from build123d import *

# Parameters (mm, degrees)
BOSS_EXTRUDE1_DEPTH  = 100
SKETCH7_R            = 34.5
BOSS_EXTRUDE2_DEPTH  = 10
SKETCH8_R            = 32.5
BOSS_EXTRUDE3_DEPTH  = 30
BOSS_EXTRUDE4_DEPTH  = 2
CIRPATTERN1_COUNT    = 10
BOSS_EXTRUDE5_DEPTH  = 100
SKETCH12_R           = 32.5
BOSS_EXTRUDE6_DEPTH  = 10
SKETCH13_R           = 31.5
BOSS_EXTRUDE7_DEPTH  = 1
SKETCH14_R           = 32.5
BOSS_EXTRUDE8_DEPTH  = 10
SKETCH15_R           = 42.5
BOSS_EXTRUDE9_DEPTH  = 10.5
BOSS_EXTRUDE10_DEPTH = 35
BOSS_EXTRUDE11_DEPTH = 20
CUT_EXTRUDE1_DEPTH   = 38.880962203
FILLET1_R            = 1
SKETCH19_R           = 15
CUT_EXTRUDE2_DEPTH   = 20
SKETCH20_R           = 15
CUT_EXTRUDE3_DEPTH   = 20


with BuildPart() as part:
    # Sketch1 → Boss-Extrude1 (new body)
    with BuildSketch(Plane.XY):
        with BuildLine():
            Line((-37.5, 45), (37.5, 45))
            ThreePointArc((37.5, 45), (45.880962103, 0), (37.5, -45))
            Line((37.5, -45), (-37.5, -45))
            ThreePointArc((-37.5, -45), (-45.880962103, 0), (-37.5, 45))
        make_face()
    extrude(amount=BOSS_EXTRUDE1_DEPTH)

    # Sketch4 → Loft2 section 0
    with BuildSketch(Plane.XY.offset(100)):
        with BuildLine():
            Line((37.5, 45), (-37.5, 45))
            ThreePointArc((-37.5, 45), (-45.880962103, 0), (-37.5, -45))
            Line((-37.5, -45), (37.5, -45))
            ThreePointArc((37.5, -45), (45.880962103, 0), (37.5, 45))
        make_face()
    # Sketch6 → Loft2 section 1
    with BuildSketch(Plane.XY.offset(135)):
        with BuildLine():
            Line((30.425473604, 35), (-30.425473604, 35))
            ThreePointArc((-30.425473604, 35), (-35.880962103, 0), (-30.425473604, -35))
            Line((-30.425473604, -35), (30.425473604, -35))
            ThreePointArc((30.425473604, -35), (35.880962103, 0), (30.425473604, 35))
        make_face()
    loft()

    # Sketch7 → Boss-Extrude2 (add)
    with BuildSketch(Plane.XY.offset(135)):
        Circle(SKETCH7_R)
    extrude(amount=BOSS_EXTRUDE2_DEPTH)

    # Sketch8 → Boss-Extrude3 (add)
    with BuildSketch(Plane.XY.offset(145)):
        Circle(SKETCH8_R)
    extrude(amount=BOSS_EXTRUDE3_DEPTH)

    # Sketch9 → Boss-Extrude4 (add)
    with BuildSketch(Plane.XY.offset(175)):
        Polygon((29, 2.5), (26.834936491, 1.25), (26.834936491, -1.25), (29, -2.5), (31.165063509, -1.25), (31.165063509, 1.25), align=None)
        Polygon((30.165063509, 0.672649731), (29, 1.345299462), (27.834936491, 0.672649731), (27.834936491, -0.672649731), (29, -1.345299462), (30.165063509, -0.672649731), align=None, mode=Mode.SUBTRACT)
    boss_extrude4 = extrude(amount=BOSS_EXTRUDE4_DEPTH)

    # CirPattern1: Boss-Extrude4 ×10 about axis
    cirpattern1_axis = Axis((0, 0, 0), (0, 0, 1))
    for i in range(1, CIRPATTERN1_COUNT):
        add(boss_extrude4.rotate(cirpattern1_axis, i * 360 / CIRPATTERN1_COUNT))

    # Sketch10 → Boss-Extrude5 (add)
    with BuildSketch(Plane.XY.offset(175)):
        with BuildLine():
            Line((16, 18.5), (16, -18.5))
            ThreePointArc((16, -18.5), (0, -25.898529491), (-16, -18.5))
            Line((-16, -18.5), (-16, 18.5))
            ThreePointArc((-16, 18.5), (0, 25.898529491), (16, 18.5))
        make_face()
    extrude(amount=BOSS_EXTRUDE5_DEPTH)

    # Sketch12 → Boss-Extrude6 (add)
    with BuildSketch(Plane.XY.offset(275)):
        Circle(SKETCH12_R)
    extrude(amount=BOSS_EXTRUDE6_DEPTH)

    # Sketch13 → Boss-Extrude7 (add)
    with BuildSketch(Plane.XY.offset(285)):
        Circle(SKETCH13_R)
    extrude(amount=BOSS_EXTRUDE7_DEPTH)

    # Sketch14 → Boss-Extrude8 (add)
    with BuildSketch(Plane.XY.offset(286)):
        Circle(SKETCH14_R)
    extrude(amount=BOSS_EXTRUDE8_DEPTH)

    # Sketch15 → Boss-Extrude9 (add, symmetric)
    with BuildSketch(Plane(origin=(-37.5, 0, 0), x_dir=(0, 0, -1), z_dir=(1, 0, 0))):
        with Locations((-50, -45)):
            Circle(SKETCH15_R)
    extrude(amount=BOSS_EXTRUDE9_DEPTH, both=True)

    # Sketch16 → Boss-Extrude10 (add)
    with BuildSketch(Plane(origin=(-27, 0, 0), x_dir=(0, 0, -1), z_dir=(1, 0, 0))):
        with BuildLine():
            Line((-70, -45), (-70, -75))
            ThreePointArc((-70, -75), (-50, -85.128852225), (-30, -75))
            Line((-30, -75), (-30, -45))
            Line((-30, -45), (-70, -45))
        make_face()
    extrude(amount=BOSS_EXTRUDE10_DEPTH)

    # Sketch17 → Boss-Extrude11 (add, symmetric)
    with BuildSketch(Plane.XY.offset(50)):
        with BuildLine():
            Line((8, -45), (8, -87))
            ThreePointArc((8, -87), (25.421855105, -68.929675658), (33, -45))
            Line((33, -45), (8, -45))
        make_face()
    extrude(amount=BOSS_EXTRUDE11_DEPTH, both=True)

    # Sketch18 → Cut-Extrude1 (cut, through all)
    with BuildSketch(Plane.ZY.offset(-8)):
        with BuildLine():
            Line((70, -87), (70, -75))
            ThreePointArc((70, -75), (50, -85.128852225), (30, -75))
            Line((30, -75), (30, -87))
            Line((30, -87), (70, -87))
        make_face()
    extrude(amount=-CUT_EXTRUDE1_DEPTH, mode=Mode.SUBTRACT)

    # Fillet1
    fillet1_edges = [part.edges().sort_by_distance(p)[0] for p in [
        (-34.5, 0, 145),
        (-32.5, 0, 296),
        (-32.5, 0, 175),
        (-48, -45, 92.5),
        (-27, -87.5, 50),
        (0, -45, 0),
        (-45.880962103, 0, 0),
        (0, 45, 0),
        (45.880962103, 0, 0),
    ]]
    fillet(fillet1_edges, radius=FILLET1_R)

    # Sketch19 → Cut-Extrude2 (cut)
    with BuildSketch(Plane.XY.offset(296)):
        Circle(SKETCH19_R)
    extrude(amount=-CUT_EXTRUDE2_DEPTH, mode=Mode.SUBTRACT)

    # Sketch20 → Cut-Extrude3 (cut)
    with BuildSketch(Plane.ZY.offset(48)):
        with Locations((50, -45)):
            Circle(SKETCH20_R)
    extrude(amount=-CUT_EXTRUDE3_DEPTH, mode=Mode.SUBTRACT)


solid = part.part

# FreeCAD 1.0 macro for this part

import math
import FreeCAD as App
import Part
import Sketcher
Q = App.Units.Quantity


def edges_at(feature, points):
    """Names of the edges that pass closest to the given points."""
    edges = feature.Shape.Edges
    near = lambda p: min(range(len(edges)), key=lambda i: edges[i].distToShape(Part.Vertex(*p))[0])
    return sorted({f"Edge{near(p) + 1}" for p in points})


def add_polygon(sketch, points):
    """Adds a closed chain of lines whose ends are joined by coincident constraints."""
    first, n = sketch.GeometryCount, len(points)
    for a, b in zip(points, points[1:] + points[:1]):
        sketch.addGeometry(Part.LineSegment(App.Vector(*a, 0), App.Vector(*b, 0)), False)
    for i in range(n):
        sketch.addConstraint(Sketcher.Constraint("Coincident", first + i, 2, first + (i + 1) % n, 1))

doc = App.newDocument("Part")
body = doc.addObject("PartDesign::Body", "Body")

# Sketch on XY plane
sketch1 = doc.addObject("Sketcher::SketchObject", "Sketch")
body.addObject(sketch1)
sketch1.AttachmentSupport = (doc.XY_Plane, [""])
sketch1.MapMode = "FlatFace"
sketch1.addGeometry(Part.LineSegment(App.Vector(38, 45, 0), App.Vector(-38, 45, 0)), False)
sketch1.addGeometry(Part.ArcOfCircle(Part.Circle(App.Vector(79, 0, 0), App.Vector(0, 0, 1), 125), math.radians(159), math.radians(201)), False)
sketch1.addGeometry(Part.LineSegment(App.Vector(-38, -45, 0), App.Vector(38, -45, 0)), False)
sketch1.addGeometry(Part.ArcOfCircle(Part.Circle(App.Vector(-79, 0, 0), App.Vector(0, 0, 1), 125), math.radians(-21), math.radians(21)), False)
sketch1.addConstraint(Sketcher.Constraint("Coincident", 0, 2, 1, 1))
sketch1.addConstraint(Sketcher.Constraint("Coincident", 1, 2, 2, 1))
sketch1.addConstraint(Sketcher.Constraint("Coincident", 2, 2, 3, 1))
sketch1.addConstraint(Sketcher.Constraint("Coincident", 3, 2, 0, 1))
sketch1.addConstraint(Sketcher.Constraint("Horizontal", 0))
sketch1.addConstraint(Sketcher.Constraint("Horizontal", 2))
sketch1.addConstraint(Sketcher.Constraint("Equal", 1, 3))
sketch1.addConstraint(Sketcher.Constraint("Symmetric", 1, 3, 3, 3, -1, 1))
sketch1.addConstraint(Sketcher.Constraint("Symmetric", 0, 2, 1, 2, -1))
sketch1.addConstraint(Sketcher.Constraint("Radius", 1, Q("125 mm")))
sketch1.addConstraint(Sketcher.Constraint("DistanceX", 0, 2, 0, 1, Q("75 mm")))
sketch1.addConstraint(Sketcher.Constraint("DistanceY", -1, 1, 0, 2, Q("45 mm")))
pad1 = doc.addObject("PartDesign::Pad", "Pad")
body.addObject(pad1)
pad1.Profile = sketch1
pad1.Length = 100

# Sketch on XY plane
sketch2 = doc.addObject("Sketcher::SketchObject", "Sketch001")
body.addObject(sketch2)
sketch2.AttachmentSupport = (doc.XY_Plane, [""])
sketch2.MapMode = "FlatFace"
sketch2.AttachmentOffset = App.Placement(App.Vector(0, 0, 100), App.Rotation())
sketch2.addGeometry(Part.LineSegment(App.Vector(38, 45, 0), App.Vector(-38, 45, 0)), False)
sketch2.addGeometry(Part.ArcOfCircle(Part.Circle(App.Vector(79, 0, 0), App.Vector(0, 0, 1), 125), math.radians(159), math.radians(201)), False)
sketch2.addGeometry(Part.LineSegment(App.Vector(-38, -45, 0), App.Vector(38, -45, 0)), False)
sketch2.addGeometry(Part.ArcOfCircle(Part.Circle(App.Vector(-79, 0, 0), App.Vector(0, 0, 1), 125), math.radians(-21), math.radians(21)), False)
sketch2.addConstraint(Sketcher.Constraint("Coincident", 0, 2, 1, 1))
sketch2.addConstraint(Sketcher.Constraint("Coincident", 1, 2, 2, 1))
sketch2.addConstraint(Sketcher.Constraint("Coincident", 2, 2, 3, 1))
sketch2.addConstraint(Sketcher.Constraint("Coincident", 3, 2, 0, 1))
sketch2.addConstraint(Sketcher.Constraint("Horizontal", 0))
sketch2.addConstraint(Sketcher.Constraint("Horizontal", 2))
sketch2.addConstraint(Sketcher.Constraint("Equal", 1, 3))
sketch2.addConstraint(Sketcher.Constraint("Symmetric", 1, 3, 3, 3, -1, 1))
sketch2.addConstraint(Sketcher.Constraint("Symmetric", 0, 2, 1, 2, -1))
sketch2.addConstraint(Sketcher.Constraint("Radius", 1, Q("125 mm")))
sketch2.addConstraint(Sketcher.Constraint("DistanceX", 0, 2, 0, 1, Q("75 mm")))
sketch2.addConstraint(Sketcher.Constraint("DistanceY", -1, 1, 0, 2, Q("45 mm")))

# Sketch on XY plane
sketch3 = doc.addObject("Sketcher::SketchObject", "Sketch002")
body.addObject(sketch3)
sketch3.AttachmentSupport = (doc.XY_Plane, [""])
sketch3.MapMode = "FlatFace"
sketch3.AttachmentOffset = App.Placement(App.Vector(0, 0, 135), App.Rotation())
sketch3.addGeometry(Part.LineSegment(App.Vector(30, 35, 0), App.Vector(-30, 35, 0)), False)
sketch3.addGeometry(Part.ArcOfCircle(Part.Circle(App.Vector(79, 0, 0), App.Vector(0, 0, 1), 115), math.radians(162), math.radians(198)), False)
sketch3.addGeometry(Part.LineSegment(App.Vector(-30, -35, 0), App.Vector(30, -35, 0)), False)
sketch3.addGeometry(Part.ArcOfCircle(Part.Circle(App.Vector(-79, 0, 0), App.Vector(0, 0, 1), 115), math.radians(-18), math.radians(18)), False)
sketch3.addConstraint(Sketcher.Constraint("Coincident", 0, 2, 1, 1))
sketch3.addConstraint(Sketcher.Constraint("Coincident", 1, 2, 2, 1))
sketch3.addConstraint(Sketcher.Constraint("Coincident", 2, 2, 3, 1))
sketch3.addConstraint(Sketcher.Constraint("Coincident", 3, 2, 0, 1))
sketch3.addConstraint(Sketcher.Constraint("Horizontal", 0))
sketch3.addConstraint(Sketcher.Constraint("Horizontal", 2))
sketch3.addConstraint(Sketcher.Constraint("Equal", 1, 3))
sketch3.addConstraint(Sketcher.Constraint("Symmetric", 1, 3, 3, 3, -1, 1))
sketch3.addConstraint(Sketcher.Constraint("Symmetric", 0, 2, 1, 2, -1))
sketch3.addConstraint(Sketcher.Constraint("Radius", 1, Q("115 mm")))
sketch3.addConstraint(Sketcher.Constraint("DistanceY", -1, 1, 0, 2, Q("35 mm")))
sketch3.addConstraint(Sketcher.Constraint("DistanceX", 0, 2, 0, 1, Q("60.850947 mm")))

additiveloft = doc.addObject("PartDesign::AdditiveLoft", "AdditiveLoft")
body.addObject(additiveloft)
additiveloft.Profile = sketch2
additiveloft.Sections = [sketch3]

# Sketch on XY plane
sketch4 = doc.addObject("Sketcher::SketchObject", "Sketch003")
body.addObject(sketch4)
sketch4.AttachmentSupport = (doc.XY_Plane, [""])
sketch4.MapMode = "FlatFace"
sketch4.AttachmentOffset = App.Placement(App.Vector(0, 0, 135), App.Rotation())
sketch4.addGeometry(Part.Circle(App.Vector(0, 0, 0), App.Vector(0, 0, 1), 34), False)
sketch4.addConstraint(Sketcher.Constraint("Coincident", 0, 3, -1, 1))
sketch4.addConstraint(Sketcher.Constraint("Diameter", 0, Q("69 mm")))
pad2 = doc.addObject("PartDesign::Pad", "Pad001")
body.addObject(pad2)
pad2.Profile = sketch4
pad2.Length = 10

# Sketch on XY plane
sketch5 = doc.addObject("Sketcher::SketchObject", "Sketch004")
body.addObject(sketch5)
sketch5.AttachmentSupport = (doc.XY_Plane, [""])
sketch5.MapMode = "FlatFace"
sketch5.AttachmentOffset = App.Placement(App.Vector(0, 0, 145), App.Rotation())
sketch5.addGeometry(Part.Circle(App.Vector(0, 0, 0), App.Vector(0, 0, 1), 32), False)
sketch5.addConstraint(Sketcher.Constraint("Coincident", 0, 3, -1, 1))
sketch5.addConstraint(Sketcher.Constraint("Diameter", 0, Q("65 mm")))
pad3 = doc.addObject("PartDesign::Pad", "Pad002")
body.addObject(pad3)
pad3.Profile = sketch5
pad3.Length = 30

# Sketch on XY plane
sketch6 = doc.addObject("Sketcher::SketchObject", "Sketch005")
body.addObject(sketch6)
sketch6.AttachmentSupport = (doc.XY_Plane, [""])
sketch6.MapMode = "FlatFace"
sketch6.AttachmentOffset = App.Placement(App.Vector(0, 0, 175), App.Rotation())
add_polygon(sketch6, [(29, 2.5), (26.8, 1.2), (26.8, -1.2), (29, -2.5), (31.2, -1.2), (31.2, 1.2)])  # lines 0-5
add_polygon(sketch6, [(29, 1.3), (30.2, 0.7), (30.2, -0.7), (29, -1.3), (27.8, -0.7), (27.8, 0.7)])  # lines 6-11
sketch6.addConstraint(Sketcher.Constraint("Vertical", 1))
sketch6.addConstraint(Sketcher.Constraint("Vertical", 4))
sketch6.addConstraint(Sketcher.Constraint("Vertical", 7))
sketch6.addConstraint(Sketcher.Constraint("Vertical", 10))
sketch6.addConstraint(Sketcher.Constraint("Symmetric", 2, 2, 5, 2, -1))
sketch6.addConstraint(Sketcher.Constraint("Symmetric", 8, 2, 11, 2, -1))
sketch6.addConstraint(Sketcher.Constraint("Parallel", 0, 3))
sketch6.addConstraint(Sketcher.Constraint("Parallel", 2, 5))
sketch6.addConstraint(Sketcher.Constraint("Parallel", 5, 6))
sketch6.addConstraint(Sketcher.Constraint("Parallel", 3, 8))
sketch6.addConstraint(Sketcher.Constraint("Parallel", 6, 9))
sketch6.addConstraint(Sketcher.Constraint("Parallel", 8, 11))
sketch6.addConstraint(Sketcher.Constraint("Horizontal", 1, 2, 3, 2))
sketch6.addConstraint(Sketcher.Constraint("Horizontal", 0, 2, 4, 2))
sketch6.addConstraint(Sketcher.Constraint("Horizontal", 7, 2, 9, 2))
sketch6.addConstraint(Sketcher.Constraint("Vertical", 5, 2, 8, 2))
sketch6.addConstraint(Sketcher.Constraint("Angle", 0, Q("-150 deg")))
sketch6.addConstraint(Sketcher.Constraint("DistanceY", 1, 2, 1, 1, Q("2.5 mm")))
sketch6.addConstraint(Sketcher.Constraint("DistanceX", -1, 1, 2, 2, Q("29 mm")))
sketch6.addConstraint(Sketcher.Constraint("DistanceY", 2, 2, 5, 2, Q("5 mm")))
sketch6.addConstraint(Sketcher.Constraint("DistanceX", 6, 2, 4, 2, Q("1 mm")))
sketch6.addConstraint(Sketcher.Constraint("DistanceY", 7, 2, 7, 1, Q("1.345299 mm")))
pad4 = doc.addObject("PartDesign::Pad", "Pad003")
body.addObject(pad4)
pad4.Profile = sketch6
pad4.Length = 2
doc.recompute()

polarpattern = doc.addObject("PartDesign::PolarPattern", "PolarPattern")
body.addObject(polarpattern)
polarpattern.Originals = [pad4]
polarpattern.Axis = (doc.Z_Axis, [""])
polarpattern.Angle = 360
polarpattern.Occurrences = 10
body.Tip = polarpattern

# Sketch on XY plane
sketch7 = doc.addObject("Sketcher::SketchObject", "Sketch006")
body.addObject(sketch7)
sketch7.AttachmentSupport = (doc.XY_Plane, [""])
sketch7.MapMode = "FlatFace"
sketch7.AttachmentOffset = App.Placement(App.Vector(0, 0, 175), App.Rotation())
sketch7.addGeometry(Part.LineSegment(App.Vector(16, -18, 0), App.Vector(16, 18, 0)), False)
sketch7.addGeometry(Part.ArcOfCircle(Part.Circle(App.Vector(0, 5, 0), App.Vector(0, 0, 1), 21), math.radians(40), math.radians(140)), False)
sketch7.addGeometry(Part.LineSegment(App.Vector(-16, 18, 0), App.Vector(-16, -18, 0)), False)
sketch7.addGeometry(Part.ArcOfCircle(Part.Circle(App.Vector(0, -5, 0), App.Vector(0, 0, 1), 21), math.radians(-140), math.radians(-40)), False)
sketch7.addConstraint(Sketcher.Constraint("Coincident", 0, 2, 1, 1))
sketch7.addConstraint(Sketcher.Constraint("Coincident", 1, 2, 2, 1))
sketch7.addConstraint(Sketcher.Constraint("Coincident", 2, 2, 3, 1))
sketch7.addConstraint(Sketcher.Constraint("Coincident", 3, 2, 0, 1))
sketch7.addConstraint(Sketcher.Constraint("Vertical", 0))
sketch7.addConstraint(Sketcher.Constraint("Vertical", 2))
sketch7.addConstraint(Sketcher.Constraint("Equal", 1, 3))
sketch7.addConstraint(Sketcher.Constraint("Symmetric", 1, 3, 3, 3, -1, 1))
sketch7.addConstraint(Sketcher.Constraint("Symmetric", 0, 2, 1, 2, -2))
sketch7.addConstraint(Sketcher.Constraint("Radius", 1, Q("21 mm")))
sketch7.addConstraint(Sketcher.Constraint("DistanceY", 0, 1, 0, 2, Q("37 mm")))
sketch7.addConstraint(Sketcher.Constraint("DistanceX", -1, 1, 0, 2, Q("16 mm")))
pad5 = doc.addObject("PartDesign::Pad", "Pad004")
body.addObject(pad5)
pad5.Profile = sketch7
pad5.Length = 100

# Sketch on XY plane
sketch8 = doc.addObject("Sketcher::SketchObject", "Sketch007")
body.addObject(sketch8)
sketch8.AttachmentSupport = (doc.XY_Plane, [""])
sketch8.MapMode = "FlatFace"
sketch8.AttachmentOffset = App.Placement(App.Vector(0, 0, 275), App.Rotation())
sketch8.addGeometry(Part.Circle(App.Vector(0, 0, 0), App.Vector(0, 0, 1), 32), False)
sketch8.addConstraint(Sketcher.Constraint("Coincident", 0, 3, -1, 1))
sketch8.addConstraint(Sketcher.Constraint("Diameter", 0, Q("65 mm")))
pad6 = doc.addObject("PartDesign::Pad", "Pad005")
body.addObject(pad6)
pad6.Profile = sketch8
pad6.Length = 10

# Sketch on XY plane
sketch9 = doc.addObject("Sketcher::SketchObject", "Sketch008")
body.addObject(sketch9)
sketch9.AttachmentSupport = (doc.XY_Plane, [""])
sketch9.MapMode = "FlatFace"
sketch9.AttachmentOffset = App.Placement(App.Vector(0, 0, 285), App.Rotation())
sketch9.addGeometry(Part.Circle(App.Vector(0, 0, 0), App.Vector(0, 0, 1), 32), False)
sketch9.addConstraint(Sketcher.Constraint("Coincident", 0, 3, -1, 1))
sketch9.addConstraint(Sketcher.Constraint("Diameter", 0, Q("63 mm")))
pad7 = doc.addObject("PartDesign::Pad", "Pad006")
body.addObject(pad7)
pad7.Profile = sketch9
pad7.Length = 1

# Sketch on XY plane
sketch10 = doc.addObject("Sketcher::SketchObject", "Sketch009")
body.addObject(sketch10)
sketch10.AttachmentSupport = (doc.XY_Plane, [""])
sketch10.MapMode = "FlatFace"
sketch10.AttachmentOffset = App.Placement(App.Vector(0, 0, 286), App.Rotation())
sketch10.addGeometry(Part.Circle(App.Vector(0, 0, 0), App.Vector(0, 0, 1), 32), False)
sketch10.addConstraint(Sketcher.Constraint("Coincident", 0, 3, -1, 1))
sketch10.addConstraint(Sketcher.Constraint("Diameter", 0, Q("65 mm")))
pad8 = doc.addObject("PartDesign::Pad", "Pad007")
body.addObject(pad8)
pad8.Profile = sketch10
pad8.Length = 10

# Sketch on YZ plane
sketch11 = doc.addObject("Sketcher::SketchObject", "Sketch010")
body.addObject(sketch11)
sketch11.AttachmentSupport = (doc.YZ_Plane, [""])
sketch11.MapMode = "FlatFace"
sketch11.AttachmentOffset = App.Placement(App.Vector(0, 0, -37.5), App.Rotation())
sketch11.addGeometry(Part.Circle(App.Vector(-45, 50, 0), App.Vector(0, 0, 1), 42), False)
sketch11.addConstraint(Sketcher.Constraint("Diameter", 0, Q("85 mm")))
sketch11.addConstraint(Sketcher.Constraint("DistanceX", 0, 3, -1, 1, Q("45 mm")))
sketch11.addConstraint(Sketcher.Constraint("DistanceY", -1, 1, 0, 3, Q("50 mm")))
pad9 = doc.addObject("PartDesign::Pad", "Pad008")
body.addObject(pad9)
pad9.Profile = sketch11
pad9.Length = 21
pad9.Midplane = True

# Sketch on YZ plane
sketch12 = doc.addObject("Sketcher::SketchObject", "Sketch011")
body.addObject(sketch12)
sketch12.AttachmentSupport = (doc.YZ_Plane, [""])
sketch12.MapMode = "FlatFace"
sketch12.AttachmentOffset = App.Placement(App.Vector(0, 0, -27), App.Rotation())
sketch12.addGeometry(Part.LineSegment(App.Vector(-45, 70, 0), App.Vector(-75, 70, 0)), False)
sketch12.addGeometry(Part.ArcOfCircle(Part.Circle(App.Vector(-60, 50, 0), App.Vector(0, 0, 1), 25), math.radians(126), math.radians(234)), False)
sketch12.addGeometry(Part.LineSegment(App.Vector(-75, 30, 0), App.Vector(-45, 30, 0)), False)
sketch12.addGeometry(Part.LineSegment(App.Vector(-45, 30, 0), App.Vector(-45, 70, 0)), False)
sketch12.addConstraint(Sketcher.Constraint("Coincident", 0, 2, 1, 1))
sketch12.addConstraint(Sketcher.Constraint("Coincident", 1, 2, 2, 1))
sketch12.addConstraint(Sketcher.Constraint("Coincident", 2, 2, 3, 1))
sketch12.addConstraint(Sketcher.Constraint("Coincident", 3, 2, 0, 1))
sketch12.addConstraint(Sketcher.Constraint("Horizontal", 0))
sketch12.addConstraint(Sketcher.Constraint("Horizontal", 2))
sketch12.addConstraint(Sketcher.Constraint("Vertical", 3))
sketch12.addConstraint(Sketcher.Constraint("Vertical", 0, 2, 1, 2))
sketch12.addConstraint(Sketcher.Constraint("DistanceX", 0, 2, 0, 1, Q("30 mm")))
sketch12.addConstraint(Sketcher.Constraint("DistanceY", 3, 1, 3, 2, Q("40 mm")))
sketch12.addConstraint(Sketcher.Constraint("Radius", 1, Q("24.81 mm")))
sketch12.addConstraint(Sketcher.Constraint("DistanceY", -1, 1, 1, 3, Q("50 mm")))
sketch12.addConstraint(Sketcher.Constraint("DistanceX", 0, 2, -1, 1, Q("75 mm")))
pad10 = doc.addObject("PartDesign::Pad", "Pad009")
body.addObject(pad10)
pad10.Profile = sketch12
pad10.Length = 35

# Sketch on XY plane
sketch13 = doc.addObject("Sketcher::SketchObject", "Sketch012")
body.addObject(sketch13)
sketch13.AttachmentSupport = (doc.XY_Plane, [""])
sketch13.MapMode = "FlatFace"
sketch13.AttachmentOffset = App.Placement(App.Vector(0, 0, 50), App.Rotation())
sketch13.addGeometry(Part.LineSegment(App.Vector(8, -45, 0), App.Vector(8, -87, 0)), False)
sketch13.addGeometry(Part.ArcOfCircle(Part.Circle(App.Vector(-22, -41, 0), App.Vector(0, 0, 1), 55), math.radians(-57), math.radians(-4)), False)
sketch13.addGeometry(Part.LineSegment(App.Vector(33, -45, 0), App.Vector(8, -45, 0)), False)
sketch13.addConstraint(Sketcher.Constraint("Coincident", 0, 2, 1, 1))
sketch13.addConstraint(Sketcher.Constraint("Coincident", 1, 2, 2, 1))
sketch13.addConstraint(Sketcher.Constraint("Coincident", 2, 2, 0, 1))
sketch13.addConstraint(Sketcher.Constraint("Vertical", 0))
sketch13.addConstraint(Sketcher.Constraint("Horizontal", 2))
sketch13.addConstraint(Sketcher.Constraint("Radius", 1, Q("55 mm")))
sketch13.addConstraint(Sketcher.Constraint("DistanceX", 2, 2, 2, 1, Q("25 mm")))
sketch13.addConstraint(Sketcher.Constraint("DistanceY", 0, 2, 0, 1, Q("42 mm")))
sketch13.addConstraint(Sketcher.Constraint("DistanceX", -1, 1, 0, 2, Q("8 mm")))
sketch13.addConstraint(Sketcher.Constraint("DistanceY", 0, 2, -1, 1, Q("87 mm")))
pad11 = doc.addObject("PartDesign::Pad", "Pad010")
body.addObject(pad11)
pad11.Profile = sketch13
pad11.Length = 40
pad11.Midplane = True

# Sketch on YZ plane
sketch14 = doc.addObject("Sketcher::SketchObject", "Sketch013")
body.addObject(sketch14)
sketch14.AttachmentSupport = (doc.YZ_Plane, [""])
sketch14.MapMode = "FlatFace"
sketch14.AttachmentOffset = App.Placement(App.Vector(0, 0, 8), App.Rotation())
sketch14.addGeometry(Part.LineSegment(App.Vector(-87, 70, 0), App.Vector(-75, 70, 0)), False)
sketch14.addGeometry(Part.ArcOfCircle(Part.Circle(App.Vector(-60, 50, 0), App.Vector(0, 0, 1), 25), math.radians(126), math.radians(234)), False)
sketch14.addGeometry(Part.LineSegment(App.Vector(-75, 30, 0), App.Vector(-87, 30, 0)), False)
sketch14.addGeometry(Part.LineSegment(App.Vector(-87, 30, 0), App.Vector(-87, 70, 0)), False)
sketch14.addConstraint(Sketcher.Constraint("Coincident", 0, 2, 1, 1))
sketch14.addConstraint(Sketcher.Constraint("Coincident", 1, 2, 2, 1))
sketch14.addConstraint(Sketcher.Constraint("Coincident", 2, 2, 3, 1))
sketch14.addConstraint(Sketcher.Constraint("Coincident", 3, 2, 0, 1))
sketch14.addConstraint(Sketcher.Constraint("Horizontal", 0))
sketch14.addConstraint(Sketcher.Constraint("Horizontal", 2))
sketch14.addConstraint(Sketcher.Constraint("Vertical", 3))
sketch14.addConstraint(Sketcher.Constraint("Vertical", 0, 2, 1, 2))
sketch14.addConstraint(Sketcher.Constraint("DistanceX", 0, 1, 0, 2, Q("12 mm")))
sketch14.addConstraint(Sketcher.Constraint("DistanceY", 3, 1, 3, 2, Q("40 mm")))
sketch14.addConstraint(Sketcher.Constraint("Radius", 1, Q("24.81 mm")))
sketch14.addConstraint(Sketcher.Constraint("DistanceY", -1, 1, 1, 3, Q("50 mm")))
sketch14.addConstraint(Sketcher.Constraint("DistanceX", 0, 2, -1, 1, Q("75 mm")))
pocket1 = doc.addObject("PartDesign::Pocket", "Pocket")
body.addObject(pocket1)
pocket1.Profile = sketch14
pocket1.Type = "ThroughAll"
pocket1.Reversed = True
doc.recompute()

fillet = doc.addObject("PartDesign::Fillet", "Fillet")
body.addObject(fillet)
fillet.Base = (pocket1, edges_at(pocket1, [
    (-34.5, 0, 145),
    (-32.5, 0, 296),
    (-32.5, 0, 175),
    (-48, -45, 92.5),
    (-27, -87.5, 50),
    (0, -45, 0),
    (-45.881, 0, 0),
    (0, 45, 0),
    (45.881, 0, 0),
]))
fillet.Radius = 1

# Sketch on XY plane
sketch15 = doc.addObject("Sketcher::SketchObject", "Sketch014")
body.addObject(sketch15)
sketch15.AttachmentSupport = (doc.XY_Plane, [""])
sketch15.MapMode = "FlatFace"
sketch15.AttachmentOffset = App.Placement(App.Vector(0, 0, 296), App.Rotation())
sketch15.addGeometry(Part.Circle(App.Vector(0, 0, 0), App.Vector(0, 0, 1), 15), False)
sketch15.addConstraint(Sketcher.Constraint("Coincident", 0, 3, -1, 1))
sketch15.addConstraint(Sketcher.Constraint("Diameter", 0, Q("30 mm")))
pocket2 = doc.addObject("PartDesign::Pocket", "Pocket001")
body.addObject(pocket2)
pocket2.Profile = sketch15
pocket2.Length = 20

# Sketch on YZ plane
sketch16 = doc.addObject("Sketcher::SketchObject", "Sketch015")
body.addObject(sketch16)
sketch16.AttachmentSupport = (doc.YZ_Plane, [""])
sketch16.MapMode = "FlatFace"
sketch16.AttachmentOffset = App.Placement(App.Vector(0, 0, -48), App.Rotation())
sketch16.addGeometry(Part.Circle(App.Vector(-45, 50, 0), App.Vector(0, 0, 1), 15), False)
sketch16.addConstraint(Sketcher.Constraint("Diameter", 0, Q("30 mm")))
sketch16.addConstraint(Sketcher.Constraint("DistanceX", 0, 3, -1, 1, Q("45 mm")))
sketch16.addConstraint(Sketcher.Constraint("DistanceY", -1, 1, 0, 3, Q("50 mm")))
pocket3 = doc.addObject("PartDesign::Pocket", "Pocket002")
body.addObject(pocket3)
pocket3.Profile = sketch16
pocket3.Length = 20
pocket3.Reversed = True

doc.recompute()
